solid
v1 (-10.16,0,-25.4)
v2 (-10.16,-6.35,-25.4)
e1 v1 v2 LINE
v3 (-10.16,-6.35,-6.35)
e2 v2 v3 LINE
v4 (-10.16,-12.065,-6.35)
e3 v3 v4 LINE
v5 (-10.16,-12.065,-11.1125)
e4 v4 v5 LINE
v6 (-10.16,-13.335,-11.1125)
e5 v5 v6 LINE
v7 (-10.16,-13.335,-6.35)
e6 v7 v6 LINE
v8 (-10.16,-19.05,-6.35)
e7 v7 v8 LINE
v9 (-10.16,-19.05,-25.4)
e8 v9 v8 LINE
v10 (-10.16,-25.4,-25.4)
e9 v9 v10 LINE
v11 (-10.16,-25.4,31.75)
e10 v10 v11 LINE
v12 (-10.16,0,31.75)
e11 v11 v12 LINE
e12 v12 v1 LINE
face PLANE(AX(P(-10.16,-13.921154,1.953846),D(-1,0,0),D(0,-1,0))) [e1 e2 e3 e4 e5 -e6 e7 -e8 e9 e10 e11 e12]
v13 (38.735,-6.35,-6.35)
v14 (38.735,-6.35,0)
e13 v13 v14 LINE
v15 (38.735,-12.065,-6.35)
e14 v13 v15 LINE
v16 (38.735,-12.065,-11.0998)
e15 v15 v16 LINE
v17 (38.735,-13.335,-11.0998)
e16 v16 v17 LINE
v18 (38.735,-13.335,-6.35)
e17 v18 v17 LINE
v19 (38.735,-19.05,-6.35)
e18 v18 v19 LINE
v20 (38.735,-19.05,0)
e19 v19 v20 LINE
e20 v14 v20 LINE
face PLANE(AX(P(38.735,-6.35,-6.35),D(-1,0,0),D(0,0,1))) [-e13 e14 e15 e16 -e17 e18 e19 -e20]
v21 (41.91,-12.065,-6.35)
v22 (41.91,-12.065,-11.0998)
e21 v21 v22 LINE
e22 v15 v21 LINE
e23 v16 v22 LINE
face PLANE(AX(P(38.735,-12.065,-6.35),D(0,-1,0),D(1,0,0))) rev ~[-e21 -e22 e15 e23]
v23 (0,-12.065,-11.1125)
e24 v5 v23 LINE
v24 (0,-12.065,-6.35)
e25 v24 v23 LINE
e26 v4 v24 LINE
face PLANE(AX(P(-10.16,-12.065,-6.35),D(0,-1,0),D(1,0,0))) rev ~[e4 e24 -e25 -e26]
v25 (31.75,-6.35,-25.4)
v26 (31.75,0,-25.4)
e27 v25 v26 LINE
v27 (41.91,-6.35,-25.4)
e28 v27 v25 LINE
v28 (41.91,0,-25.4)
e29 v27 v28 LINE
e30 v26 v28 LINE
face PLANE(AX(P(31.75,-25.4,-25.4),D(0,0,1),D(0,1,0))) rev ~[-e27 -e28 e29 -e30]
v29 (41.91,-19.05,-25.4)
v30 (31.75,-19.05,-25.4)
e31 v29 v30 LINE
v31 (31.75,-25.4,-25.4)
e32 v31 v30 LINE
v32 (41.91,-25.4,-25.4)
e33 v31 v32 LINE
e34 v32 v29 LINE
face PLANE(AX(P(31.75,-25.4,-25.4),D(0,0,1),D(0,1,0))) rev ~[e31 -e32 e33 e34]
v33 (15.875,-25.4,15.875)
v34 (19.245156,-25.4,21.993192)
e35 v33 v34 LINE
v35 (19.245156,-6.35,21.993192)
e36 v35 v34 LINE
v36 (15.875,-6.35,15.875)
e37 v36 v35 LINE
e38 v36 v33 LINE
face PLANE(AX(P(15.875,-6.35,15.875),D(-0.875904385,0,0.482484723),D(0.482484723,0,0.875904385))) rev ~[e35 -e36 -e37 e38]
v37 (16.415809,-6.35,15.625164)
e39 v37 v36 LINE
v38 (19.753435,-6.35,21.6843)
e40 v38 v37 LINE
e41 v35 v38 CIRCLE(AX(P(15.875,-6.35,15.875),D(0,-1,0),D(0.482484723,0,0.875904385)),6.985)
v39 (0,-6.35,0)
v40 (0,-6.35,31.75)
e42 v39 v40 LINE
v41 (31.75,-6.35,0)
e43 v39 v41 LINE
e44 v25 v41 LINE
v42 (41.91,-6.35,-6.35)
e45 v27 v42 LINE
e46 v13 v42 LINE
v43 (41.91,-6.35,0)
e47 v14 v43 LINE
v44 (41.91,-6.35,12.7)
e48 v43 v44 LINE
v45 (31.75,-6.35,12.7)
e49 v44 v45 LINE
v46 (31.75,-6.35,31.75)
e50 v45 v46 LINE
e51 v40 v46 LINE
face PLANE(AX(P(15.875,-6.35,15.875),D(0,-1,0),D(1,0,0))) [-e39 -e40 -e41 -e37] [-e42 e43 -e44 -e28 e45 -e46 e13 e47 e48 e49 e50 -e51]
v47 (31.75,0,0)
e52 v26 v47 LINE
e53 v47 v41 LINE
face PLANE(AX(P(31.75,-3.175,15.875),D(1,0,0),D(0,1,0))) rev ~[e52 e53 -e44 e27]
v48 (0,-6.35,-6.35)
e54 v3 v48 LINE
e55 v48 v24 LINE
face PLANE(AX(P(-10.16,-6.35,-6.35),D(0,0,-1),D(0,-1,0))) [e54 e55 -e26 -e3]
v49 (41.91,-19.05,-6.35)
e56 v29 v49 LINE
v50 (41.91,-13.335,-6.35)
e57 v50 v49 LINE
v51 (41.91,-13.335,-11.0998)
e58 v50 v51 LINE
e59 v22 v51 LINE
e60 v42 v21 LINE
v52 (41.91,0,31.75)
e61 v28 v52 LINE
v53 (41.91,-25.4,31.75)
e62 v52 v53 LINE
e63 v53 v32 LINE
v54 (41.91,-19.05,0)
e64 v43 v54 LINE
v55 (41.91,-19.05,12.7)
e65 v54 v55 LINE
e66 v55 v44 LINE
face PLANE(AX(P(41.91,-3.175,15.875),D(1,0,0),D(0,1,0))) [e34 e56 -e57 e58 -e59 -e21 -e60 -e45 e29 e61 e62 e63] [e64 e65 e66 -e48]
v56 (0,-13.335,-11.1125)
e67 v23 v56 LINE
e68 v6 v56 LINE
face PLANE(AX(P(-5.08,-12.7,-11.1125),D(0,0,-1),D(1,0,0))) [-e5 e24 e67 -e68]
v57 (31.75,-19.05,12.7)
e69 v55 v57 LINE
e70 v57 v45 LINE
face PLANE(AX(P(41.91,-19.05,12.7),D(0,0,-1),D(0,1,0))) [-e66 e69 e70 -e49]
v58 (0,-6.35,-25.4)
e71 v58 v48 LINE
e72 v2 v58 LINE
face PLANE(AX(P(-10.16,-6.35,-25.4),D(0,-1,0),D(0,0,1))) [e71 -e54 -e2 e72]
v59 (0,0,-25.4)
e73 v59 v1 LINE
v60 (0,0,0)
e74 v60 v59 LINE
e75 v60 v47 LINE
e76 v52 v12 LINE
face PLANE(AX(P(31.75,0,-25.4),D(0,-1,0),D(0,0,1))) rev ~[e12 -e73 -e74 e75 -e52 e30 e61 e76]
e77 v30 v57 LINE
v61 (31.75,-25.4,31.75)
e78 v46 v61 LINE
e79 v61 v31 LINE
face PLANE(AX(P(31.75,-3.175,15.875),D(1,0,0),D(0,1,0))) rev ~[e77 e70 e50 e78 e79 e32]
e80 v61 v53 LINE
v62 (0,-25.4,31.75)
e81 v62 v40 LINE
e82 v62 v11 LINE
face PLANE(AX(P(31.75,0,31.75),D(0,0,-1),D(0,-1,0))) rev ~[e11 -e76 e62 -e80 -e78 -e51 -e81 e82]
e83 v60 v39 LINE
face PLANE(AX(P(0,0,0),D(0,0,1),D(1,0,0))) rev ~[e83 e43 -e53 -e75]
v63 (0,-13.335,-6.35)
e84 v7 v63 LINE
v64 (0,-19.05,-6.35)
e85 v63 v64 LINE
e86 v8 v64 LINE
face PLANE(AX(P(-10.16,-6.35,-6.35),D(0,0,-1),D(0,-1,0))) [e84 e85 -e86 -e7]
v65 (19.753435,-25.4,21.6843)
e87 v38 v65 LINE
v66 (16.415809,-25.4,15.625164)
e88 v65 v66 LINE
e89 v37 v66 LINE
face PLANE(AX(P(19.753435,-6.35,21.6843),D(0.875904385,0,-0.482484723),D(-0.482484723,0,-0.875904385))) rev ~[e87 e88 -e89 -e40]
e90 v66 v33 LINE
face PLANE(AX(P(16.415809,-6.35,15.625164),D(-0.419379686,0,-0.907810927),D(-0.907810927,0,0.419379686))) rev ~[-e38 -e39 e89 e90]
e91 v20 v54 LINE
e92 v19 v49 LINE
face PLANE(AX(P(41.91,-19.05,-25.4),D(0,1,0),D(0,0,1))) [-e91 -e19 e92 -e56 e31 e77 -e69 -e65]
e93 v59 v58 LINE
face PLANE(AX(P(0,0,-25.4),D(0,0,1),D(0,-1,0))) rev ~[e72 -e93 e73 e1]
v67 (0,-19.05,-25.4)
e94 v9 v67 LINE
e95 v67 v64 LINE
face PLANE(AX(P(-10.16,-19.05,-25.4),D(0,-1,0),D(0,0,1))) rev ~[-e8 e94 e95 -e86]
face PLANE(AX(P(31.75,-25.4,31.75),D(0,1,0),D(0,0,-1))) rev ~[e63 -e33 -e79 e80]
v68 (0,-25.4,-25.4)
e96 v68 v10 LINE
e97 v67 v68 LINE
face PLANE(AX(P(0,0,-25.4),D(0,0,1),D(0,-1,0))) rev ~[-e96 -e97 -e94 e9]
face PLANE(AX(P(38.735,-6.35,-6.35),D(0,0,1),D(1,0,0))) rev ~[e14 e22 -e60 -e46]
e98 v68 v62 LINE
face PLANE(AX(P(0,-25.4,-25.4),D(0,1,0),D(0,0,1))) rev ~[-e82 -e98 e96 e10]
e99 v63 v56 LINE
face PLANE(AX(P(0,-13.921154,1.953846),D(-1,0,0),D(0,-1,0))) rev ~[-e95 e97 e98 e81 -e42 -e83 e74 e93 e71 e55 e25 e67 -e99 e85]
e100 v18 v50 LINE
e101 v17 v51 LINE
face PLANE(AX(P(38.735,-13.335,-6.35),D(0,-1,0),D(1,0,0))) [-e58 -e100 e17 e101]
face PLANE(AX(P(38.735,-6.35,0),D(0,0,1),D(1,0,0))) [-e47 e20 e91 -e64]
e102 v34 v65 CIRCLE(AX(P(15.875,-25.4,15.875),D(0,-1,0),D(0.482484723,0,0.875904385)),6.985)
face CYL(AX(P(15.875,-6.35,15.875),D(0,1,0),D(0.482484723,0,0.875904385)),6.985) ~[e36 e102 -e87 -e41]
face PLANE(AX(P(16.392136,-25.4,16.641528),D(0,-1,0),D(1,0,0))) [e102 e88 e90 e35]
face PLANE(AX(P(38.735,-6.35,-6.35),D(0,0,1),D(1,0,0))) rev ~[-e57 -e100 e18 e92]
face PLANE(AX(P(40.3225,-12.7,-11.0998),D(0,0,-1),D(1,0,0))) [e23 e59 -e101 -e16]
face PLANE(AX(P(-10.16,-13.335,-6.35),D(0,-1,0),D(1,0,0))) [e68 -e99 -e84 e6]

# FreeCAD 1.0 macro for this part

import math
import FreeCAD as App
import Part
import Sketcher

V = App.Vector
Q = App.Units.Quantity


def add_polygon(sketch, points):
    """Adds a closed chain of lines whose ends are joined by coincident constraints."""
    first, n = sketch.GeometryCount, len(points)
    for a, b in zip(points, points[1:] + points[:1]):
        sketch.addGeometry(Part.LineSegment(App.Vector(*a, 0), App.Vector(*b, 0)), False)
    for i in range(n):
        sketch.addConstraint(Sketcher.Constraint("Coincident", first + i, 2, first + (i + 1) % n, 1))

doc = App.newDocument("Part")
body = doc.addObject("PartDesign::Body", "Body")

# Sketch on XZ plane
sketch1 = body.newObject("Sketcher::SketchObject", "Sketch")
sketch1.AttachmentSupport = (doc.getObject("XZ_Plane"), [""])
sketch1.MapMode = "FlatFace"
add_polygon(sketch1, [(0, 32), (0, 0), (32, 0), (32, 32)])  # lines 0-3
sketch1.addConstraint(Sketcher.Constraint("Vertical", 0))
sketch1.addConstraint(Sketcher.Constraint("Horizontal", 1))
sketch1.addConstraint(Sketcher.Constraint("Vertical", 2))
sketch1.addConstraint(Sketcher.Constraint("Horizontal", 3))
sketch1.addConstraint(Sketcher.Constraint("Coincident", 0, 2, -1, 1))
sketch1.addConstraint(Sketcher.Constraint("Equal", 3, 0))
sketch1.addConstraint(Sketcher.Constraint("DistanceX", 1, 1, 1, 2, Q("1.25 in")))
pad1 = body.newObject("PartDesign::Pad", "Pad")
pad1.Profile = sketch1
pad1.Length = Q("0.25 in")

# Sketch on YZ plane
sketch2 = body.newObject("Sketcher::SketchObject", "Sketch001")
sketch2.AttachmentSupport = (doc.getObject("YZ_Plane"), [""])
sketch2.MapMode = "FlatFace"
add_polygon(sketch2, [(0, -25), (-25, -25), (-25, 32), (0, 32)])  # lines 0-3
sketch2.addConstraint(Sketcher.Constraint("Horizontal", 0))
sketch2.addConstraint(Sketcher.Constraint("Vertical", 1))
sketch2.addConstraint(Sketcher.Constraint("Horizontal", 2))
sketch2.addConstraint(Sketcher.Constraint("Vertical", 3))
sketch2.addConstraint(Sketcher.Constraint("PointOnObject", 2, 2, -2))
sketch2.addConstraint(Sketcher.Constraint("DistanceX", 0, 2, 0, 1, Q("1 in")))
sketch2.addConstraint(Sketcher.Constraint("DistanceY", 0, 2, -1, 1, Q("1 in")))
sketch2.addConstraint(Sketcher.Constraint("DistanceY", 1, 1, 1, 2, Q("2.25 in")))
pad2 = body.newObject("PartDesign::Pad", "Pad001")
pad2.Profile = sketch2
pad2.Length = Q("0.4 in")
pad2.Reversed = True

# Sketch on YZ plane
sketch3 = body.newObject("Sketcher::SketchObject", "Sketch002")
sketch3.AttachmentSupport = (doc.getObject("YZ_Plane"), [""])
sketch3.MapMode = "FlatFace"
sketch3.AttachmentOffset = App.Placement(V(0, 0, 1.25 * 25.4), App.Rotation())
add_polygon(sketch3, [(0, 32), (-25, 32), (-25, -25), (0, -25)])  # lines 0-3
sketch3.addConstraint(Sketcher.Constraint("Horizontal", 0))
sketch3.addConstraint(Sketcher.Constraint("Vertical", 1))
sketch3.addConstraint(Sketcher.Constraint("Horizontal", 2))
sketch3.addConstraint(Sketcher.Constraint("Vertical", 3))
sketch3.addConstraint(Sketcher.Constraint("PointOnObject", 2, 2, -2))
sketch3.addConstraint(Sketcher.Constraint("DistanceX", 0, 2, 0, 1, Q("1 in")))
sketch3.addConstraint(Sketcher.Constraint("DistanceY", 1, 2, -1, 1, Q("1 in")))
sketch3.addConstraint(Sketcher.Constraint("DistanceY", 1, 2, 1, 1, Q("2.25 in")))
pad3 = body.newObject("PartDesign::Pad", "Pad002")
pad3.Profile = sketch3
pad3.Length = Q("0.4 in")

# Sketch on YZ plane
sketch4 = body.newObject("Sketcher::SketchObject", "Sketch003")
sketch4.AttachmentSupport = (doc.getObject("YZ_Plane"), [""])
sketch4.MapMode = "FlatFace"
sketch4.AttachmentOffset = App.Placement(V(0, 0, 1.65 * 25.4), App.Rotation())
add_polygon(sketch4, [(-19, 13), (-19, -25), (-6, -25), (-6, 13)])  # lines 0-3
sketch4.addConstraint(Sketcher.Constraint("Vertical", 0))
sketch4.addConstraint(Sketcher.Constraint("Horizontal", 1))
sketch4.addConstraint(Sketcher.Constraint("Vertical", 2))
sketch4.addConstraint(Sketcher.Constraint("Horizontal", 3))
sketch4.addConstraint(Sketcher.Constraint("DistanceX", 1, 1, 1, 2, Q("0.5 in")))
sketch4.addConstraint(Sketcher.Constraint("DistanceY", 0, 2, 0, 1, Q("1.5 in")))
sketch4.addConstraint(Sketcher.Constraint("DistanceY", 0, 2, -1, 1, Q("1 in")))
sketch4.addConstraint(Sketcher.Constraint("DistanceX", 0, 2, -1, 1, Q("0.75 in")))
pocket1 = body.newObject("PartDesign::Pocket", "Pocket")
pocket1.Profile = sketch4
pocket1.Length = Q("0.5 in")

# Sketch on XZ plane
sketch5 = body.newObject("Sketcher::SketchObject", "Sketch004")
sketch5.AttachmentSupport = (doc.getObject("XZ_Plane"), [""])
sketch5.MapMode = "FlatFace"
sketch5.AttachmentOffset = App.Placement(V(0, 0, 0.25 * 25.4), App.Rotation())
add_polygon(sketch5, [(38.7, 0), (38.7, -6.3), (41.9, -6.3), (41.9, 0)])  # lines 0-3
sketch5.addConstraint(Sketcher.Constraint("Vertical", 0))
sketch5.addConstraint(Sketcher.Constraint("Horizontal", 1))
sketch5.addConstraint(Sketcher.Constraint("Vertical", 2))
sketch5.addConstraint(Sketcher.Constraint("Horizontal", 3))
sketch5.addConstraint(Sketcher.Constraint("PointOnObject", 2, 2, -1))
sketch5.addConstraint(Sketcher.Constraint("DistanceY", 0, 2, 0, 1, Q("0.25 in")))
sketch5.addConstraint(Sketcher.Constraint("DistanceX", 1, 1, 1, 2, Q("0.125 in")))
sketch5.addConstraint(Sketcher.Constraint("DistanceX", -1, 1, 1, 2, Q("1.65 in")))
pad4 = body.newObject("PartDesign::Pad", "Pad003")
pad4.Profile = sketch5
pad4.Type = "UpToLast"

# Sketch on YZ plane
sketch6 = body.newObject("Sketcher::SketchObject", "Sketch005")
sketch6.AttachmentSupport = (doc.getObject("YZ_Plane"), [""])
sketch6.MapMode = "FlatFace"
sketch6.AttachmentOffset = App.Placement(V(0, 0, -0.4 * 25.4), App.Rotation())
add_polygon(sketch6, [(-6, -6), (-6, -25), (-19, -25), (-19, -6)])  # lines 0-3
sketch6.addConstraint(Sketcher.Constraint("Vertical", 0))
sketch6.addConstraint(Sketcher.Constraint("Horizontal", 1))
sketch6.addConstraint(Sketcher.Constraint("Vertical", 2))
sketch6.addConstraint(Sketcher.Constraint("Horizontal", 3))
sketch6.addConstraint(Sketcher.Constraint("DistanceX", 1, 2, 1, 1, Q("0.5 in")))
sketch6.addConstraint(Sketcher.Constraint("DistanceY", 0, 2, -1, 1, Q("1 in")))
sketch6.addConstraint(Sketcher.Constraint("DistanceY", 0, 2, 0, 1, Q("0.75 in")))
sketch6.addConstraint(Sketcher.Constraint("DistanceX", 0, 2, -1, 1, Q("0.25 in")))
pocket2 = body.newObject("PartDesign::Pocket", "Pocket001")
pocket2.Profile = sketch6
pocket2.Length = Q("0.5 in")
pocket2.Reversed = True

# Sketch on XY plane
sketch7 = body.newObject("Sketcher::SketchObject", "Sketch006")
sketch7.AttachmentSupport = (doc.getObject("XY_Plane"), [""])
sketch7.MapMode = "FlatFace"
sketch7.AttachmentOffset = App.Placement(V(0, 0, -0.25 * 25.4), App.Rotation())
add_polygon(sketch7, [(-10.2, -13.3), (-10.2, -12.1), (0, -12.1), (0, -13.3)])  # lines 0-3
sketch7.addConstraint(Sketcher.Constraint("Vertical", 0))
sketch7.addConstraint(Sketcher.Constraint("Horizontal", 1))
sketch7.addConstraint(Sketcher.Constraint("Vertical", 2))
sketch7.addConstraint(Sketcher.Constraint("Horizontal", 3))
sketch7.addConstraint(Sketcher.Constraint("PointOnObject", 1, 2, -2))
sketch7.addConstraint(Sketcher.Constraint("DistanceX", 1, 1, 1, 2, Q("0.4 in")))
sketch7.addConstraint(Sketcher.Constraint("DistanceY", 0, 1, 0, 2, Q("0.05 in")))
sketch7.addConstraint(Sketcher.Constraint("DistanceY", 0, 2, -1, 1, Q("0.475 in")))
pad5 = body.newObject("PartDesign::Pad", "Pad004")
pad5.Profile = sketch7
pad5.Length = Q("0.1875 in")
pad5.Reversed = True

# Sketch on XZ plane
sketch8 = body.newObject("Sketcher::SketchObject", "Sketch007")
sketch8.AttachmentSupport = (doc.getObject("XZ_Plane"), [""])
sketch8.MapMode = "FlatFace"
sketch8.AttachmentOffset = App.Placement(V(0, 0, 0.25 * 25.4), App.Rotation())
sketch8.addGeometry(Part.LineSegment(V(16.4, 15.6, 0), V(15.9, 15.9, 0)), False)
sketch8.addGeometry(Part.LineSegment(V(15.9, 15.9, 0), V(19.2, 22, 0)), False)
sketch8.addGeometry(Part.ArcOfCircle(Part.Circle(V(15.9, 15.9, 0), V(0, 0, 1), 7), math.radians(61), math.radians(416)), False)
sketch8.addGeometry(Part.LineSegment(V(19.8, 21.7, 0), V(16.4, 15.6, 0)), False)
sketch8.addConstraint(Sketcher.Constraint("Coincident", 0, 2, 1, 1))
sketch8.addConstraint(Sketcher.Constraint("Coincident", 1, 2, 2, 1))
sketch8.addConstraint(Sketcher.Constraint("Coincident", 2, 2, 3, 1))
sketch8.addConstraint(Sketcher.Constraint("Coincident", 3, 2, 0, 1))
sketch8.addConstraint(Sketcher.Constraint("Coincident", 0, 2, 2, 3))
sketch8.addConstraint(Sketcher.Constraint("Parallel", 1, 3))
sketch8.addConstraint(Sketcher.Constraint("Radius", 2, Q("0.275 in")))
sketch8.addConstraint(Sketcher.Constraint("DistanceX", -1, 1, 2, 3, Q("0.625 in")))
sketch8.addConstraint(Sketcher.Constraint("DistanceY", -1, 1, 2, 3, Q("0.625 in")))
sketch8.addConstraint(Sketcher.Constraint("DistanceY", -1, 1, 2, 2, 21.6843))
sketch8.addConstraint(Sketcher.Constraint("Distance", 0, 0.595729))
sketch8.addConstraint(Sketcher.Constraint("DistanceX", -1, 1, 3, 2, 16.415809))
pad6 = body.newObject("PartDesign::Pad", "Pad005")
pad6.Profile = sketch8
pad6.Length = Q("0.75 in")

# Sketch on XY plane
sketch9 = body.newObject("Sketcher::SketchObject", "Sketch008")
sketch9.AttachmentSupport = (doc.getObject("XY_Plane"), [""])
sketch9.MapMode = "FlatFace"
sketch9.AttachmentOffset = App.Placement(V(0, 0, -0.25 * 25.4), App.Rotation())
add_polygon(sketch9, [(38.7, -13.3), (38.7, -12.1), (41.9, -12.1), (41.9, -13.3)])  # lines 0-3
sketch9.addConstraint(Sketcher.Constraint("Vertical", 0))
sketch9.addConstraint(Sketcher.Constraint("Horizontal", 1))
sketch9.addConstraint(Sketcher.Constraint("Vertical", 2))
sketch9.addConstraint(Sketcher.Constraint("Horizontal", 3))
sketch9.addConstraint(Sketcher.Constraint("DistanceY", 0, 1, 0, 2, Q("0.05 in")))
sketch9.addConstraint(Sketcher.Constraint("DistanceX", 1, 1, 1, 2, Q("0.125 in")))
sketch9.addConstraint(Sketcher.Constraint("DistanceX", -1, 1, 1, 2, Q("1.65 in")))
sketch9.addConstraint(Sketcher.Constraint("DistanceY", 0, 2, -1, 1, Q("0.475 in")))
pad7 = body.newObject("PartDesign::Pad", "Pad006")
pad7.Profile = sketch9
pad7.Length = Q("0.187 in")
pad7.Reversed = True

doc.recompute()
